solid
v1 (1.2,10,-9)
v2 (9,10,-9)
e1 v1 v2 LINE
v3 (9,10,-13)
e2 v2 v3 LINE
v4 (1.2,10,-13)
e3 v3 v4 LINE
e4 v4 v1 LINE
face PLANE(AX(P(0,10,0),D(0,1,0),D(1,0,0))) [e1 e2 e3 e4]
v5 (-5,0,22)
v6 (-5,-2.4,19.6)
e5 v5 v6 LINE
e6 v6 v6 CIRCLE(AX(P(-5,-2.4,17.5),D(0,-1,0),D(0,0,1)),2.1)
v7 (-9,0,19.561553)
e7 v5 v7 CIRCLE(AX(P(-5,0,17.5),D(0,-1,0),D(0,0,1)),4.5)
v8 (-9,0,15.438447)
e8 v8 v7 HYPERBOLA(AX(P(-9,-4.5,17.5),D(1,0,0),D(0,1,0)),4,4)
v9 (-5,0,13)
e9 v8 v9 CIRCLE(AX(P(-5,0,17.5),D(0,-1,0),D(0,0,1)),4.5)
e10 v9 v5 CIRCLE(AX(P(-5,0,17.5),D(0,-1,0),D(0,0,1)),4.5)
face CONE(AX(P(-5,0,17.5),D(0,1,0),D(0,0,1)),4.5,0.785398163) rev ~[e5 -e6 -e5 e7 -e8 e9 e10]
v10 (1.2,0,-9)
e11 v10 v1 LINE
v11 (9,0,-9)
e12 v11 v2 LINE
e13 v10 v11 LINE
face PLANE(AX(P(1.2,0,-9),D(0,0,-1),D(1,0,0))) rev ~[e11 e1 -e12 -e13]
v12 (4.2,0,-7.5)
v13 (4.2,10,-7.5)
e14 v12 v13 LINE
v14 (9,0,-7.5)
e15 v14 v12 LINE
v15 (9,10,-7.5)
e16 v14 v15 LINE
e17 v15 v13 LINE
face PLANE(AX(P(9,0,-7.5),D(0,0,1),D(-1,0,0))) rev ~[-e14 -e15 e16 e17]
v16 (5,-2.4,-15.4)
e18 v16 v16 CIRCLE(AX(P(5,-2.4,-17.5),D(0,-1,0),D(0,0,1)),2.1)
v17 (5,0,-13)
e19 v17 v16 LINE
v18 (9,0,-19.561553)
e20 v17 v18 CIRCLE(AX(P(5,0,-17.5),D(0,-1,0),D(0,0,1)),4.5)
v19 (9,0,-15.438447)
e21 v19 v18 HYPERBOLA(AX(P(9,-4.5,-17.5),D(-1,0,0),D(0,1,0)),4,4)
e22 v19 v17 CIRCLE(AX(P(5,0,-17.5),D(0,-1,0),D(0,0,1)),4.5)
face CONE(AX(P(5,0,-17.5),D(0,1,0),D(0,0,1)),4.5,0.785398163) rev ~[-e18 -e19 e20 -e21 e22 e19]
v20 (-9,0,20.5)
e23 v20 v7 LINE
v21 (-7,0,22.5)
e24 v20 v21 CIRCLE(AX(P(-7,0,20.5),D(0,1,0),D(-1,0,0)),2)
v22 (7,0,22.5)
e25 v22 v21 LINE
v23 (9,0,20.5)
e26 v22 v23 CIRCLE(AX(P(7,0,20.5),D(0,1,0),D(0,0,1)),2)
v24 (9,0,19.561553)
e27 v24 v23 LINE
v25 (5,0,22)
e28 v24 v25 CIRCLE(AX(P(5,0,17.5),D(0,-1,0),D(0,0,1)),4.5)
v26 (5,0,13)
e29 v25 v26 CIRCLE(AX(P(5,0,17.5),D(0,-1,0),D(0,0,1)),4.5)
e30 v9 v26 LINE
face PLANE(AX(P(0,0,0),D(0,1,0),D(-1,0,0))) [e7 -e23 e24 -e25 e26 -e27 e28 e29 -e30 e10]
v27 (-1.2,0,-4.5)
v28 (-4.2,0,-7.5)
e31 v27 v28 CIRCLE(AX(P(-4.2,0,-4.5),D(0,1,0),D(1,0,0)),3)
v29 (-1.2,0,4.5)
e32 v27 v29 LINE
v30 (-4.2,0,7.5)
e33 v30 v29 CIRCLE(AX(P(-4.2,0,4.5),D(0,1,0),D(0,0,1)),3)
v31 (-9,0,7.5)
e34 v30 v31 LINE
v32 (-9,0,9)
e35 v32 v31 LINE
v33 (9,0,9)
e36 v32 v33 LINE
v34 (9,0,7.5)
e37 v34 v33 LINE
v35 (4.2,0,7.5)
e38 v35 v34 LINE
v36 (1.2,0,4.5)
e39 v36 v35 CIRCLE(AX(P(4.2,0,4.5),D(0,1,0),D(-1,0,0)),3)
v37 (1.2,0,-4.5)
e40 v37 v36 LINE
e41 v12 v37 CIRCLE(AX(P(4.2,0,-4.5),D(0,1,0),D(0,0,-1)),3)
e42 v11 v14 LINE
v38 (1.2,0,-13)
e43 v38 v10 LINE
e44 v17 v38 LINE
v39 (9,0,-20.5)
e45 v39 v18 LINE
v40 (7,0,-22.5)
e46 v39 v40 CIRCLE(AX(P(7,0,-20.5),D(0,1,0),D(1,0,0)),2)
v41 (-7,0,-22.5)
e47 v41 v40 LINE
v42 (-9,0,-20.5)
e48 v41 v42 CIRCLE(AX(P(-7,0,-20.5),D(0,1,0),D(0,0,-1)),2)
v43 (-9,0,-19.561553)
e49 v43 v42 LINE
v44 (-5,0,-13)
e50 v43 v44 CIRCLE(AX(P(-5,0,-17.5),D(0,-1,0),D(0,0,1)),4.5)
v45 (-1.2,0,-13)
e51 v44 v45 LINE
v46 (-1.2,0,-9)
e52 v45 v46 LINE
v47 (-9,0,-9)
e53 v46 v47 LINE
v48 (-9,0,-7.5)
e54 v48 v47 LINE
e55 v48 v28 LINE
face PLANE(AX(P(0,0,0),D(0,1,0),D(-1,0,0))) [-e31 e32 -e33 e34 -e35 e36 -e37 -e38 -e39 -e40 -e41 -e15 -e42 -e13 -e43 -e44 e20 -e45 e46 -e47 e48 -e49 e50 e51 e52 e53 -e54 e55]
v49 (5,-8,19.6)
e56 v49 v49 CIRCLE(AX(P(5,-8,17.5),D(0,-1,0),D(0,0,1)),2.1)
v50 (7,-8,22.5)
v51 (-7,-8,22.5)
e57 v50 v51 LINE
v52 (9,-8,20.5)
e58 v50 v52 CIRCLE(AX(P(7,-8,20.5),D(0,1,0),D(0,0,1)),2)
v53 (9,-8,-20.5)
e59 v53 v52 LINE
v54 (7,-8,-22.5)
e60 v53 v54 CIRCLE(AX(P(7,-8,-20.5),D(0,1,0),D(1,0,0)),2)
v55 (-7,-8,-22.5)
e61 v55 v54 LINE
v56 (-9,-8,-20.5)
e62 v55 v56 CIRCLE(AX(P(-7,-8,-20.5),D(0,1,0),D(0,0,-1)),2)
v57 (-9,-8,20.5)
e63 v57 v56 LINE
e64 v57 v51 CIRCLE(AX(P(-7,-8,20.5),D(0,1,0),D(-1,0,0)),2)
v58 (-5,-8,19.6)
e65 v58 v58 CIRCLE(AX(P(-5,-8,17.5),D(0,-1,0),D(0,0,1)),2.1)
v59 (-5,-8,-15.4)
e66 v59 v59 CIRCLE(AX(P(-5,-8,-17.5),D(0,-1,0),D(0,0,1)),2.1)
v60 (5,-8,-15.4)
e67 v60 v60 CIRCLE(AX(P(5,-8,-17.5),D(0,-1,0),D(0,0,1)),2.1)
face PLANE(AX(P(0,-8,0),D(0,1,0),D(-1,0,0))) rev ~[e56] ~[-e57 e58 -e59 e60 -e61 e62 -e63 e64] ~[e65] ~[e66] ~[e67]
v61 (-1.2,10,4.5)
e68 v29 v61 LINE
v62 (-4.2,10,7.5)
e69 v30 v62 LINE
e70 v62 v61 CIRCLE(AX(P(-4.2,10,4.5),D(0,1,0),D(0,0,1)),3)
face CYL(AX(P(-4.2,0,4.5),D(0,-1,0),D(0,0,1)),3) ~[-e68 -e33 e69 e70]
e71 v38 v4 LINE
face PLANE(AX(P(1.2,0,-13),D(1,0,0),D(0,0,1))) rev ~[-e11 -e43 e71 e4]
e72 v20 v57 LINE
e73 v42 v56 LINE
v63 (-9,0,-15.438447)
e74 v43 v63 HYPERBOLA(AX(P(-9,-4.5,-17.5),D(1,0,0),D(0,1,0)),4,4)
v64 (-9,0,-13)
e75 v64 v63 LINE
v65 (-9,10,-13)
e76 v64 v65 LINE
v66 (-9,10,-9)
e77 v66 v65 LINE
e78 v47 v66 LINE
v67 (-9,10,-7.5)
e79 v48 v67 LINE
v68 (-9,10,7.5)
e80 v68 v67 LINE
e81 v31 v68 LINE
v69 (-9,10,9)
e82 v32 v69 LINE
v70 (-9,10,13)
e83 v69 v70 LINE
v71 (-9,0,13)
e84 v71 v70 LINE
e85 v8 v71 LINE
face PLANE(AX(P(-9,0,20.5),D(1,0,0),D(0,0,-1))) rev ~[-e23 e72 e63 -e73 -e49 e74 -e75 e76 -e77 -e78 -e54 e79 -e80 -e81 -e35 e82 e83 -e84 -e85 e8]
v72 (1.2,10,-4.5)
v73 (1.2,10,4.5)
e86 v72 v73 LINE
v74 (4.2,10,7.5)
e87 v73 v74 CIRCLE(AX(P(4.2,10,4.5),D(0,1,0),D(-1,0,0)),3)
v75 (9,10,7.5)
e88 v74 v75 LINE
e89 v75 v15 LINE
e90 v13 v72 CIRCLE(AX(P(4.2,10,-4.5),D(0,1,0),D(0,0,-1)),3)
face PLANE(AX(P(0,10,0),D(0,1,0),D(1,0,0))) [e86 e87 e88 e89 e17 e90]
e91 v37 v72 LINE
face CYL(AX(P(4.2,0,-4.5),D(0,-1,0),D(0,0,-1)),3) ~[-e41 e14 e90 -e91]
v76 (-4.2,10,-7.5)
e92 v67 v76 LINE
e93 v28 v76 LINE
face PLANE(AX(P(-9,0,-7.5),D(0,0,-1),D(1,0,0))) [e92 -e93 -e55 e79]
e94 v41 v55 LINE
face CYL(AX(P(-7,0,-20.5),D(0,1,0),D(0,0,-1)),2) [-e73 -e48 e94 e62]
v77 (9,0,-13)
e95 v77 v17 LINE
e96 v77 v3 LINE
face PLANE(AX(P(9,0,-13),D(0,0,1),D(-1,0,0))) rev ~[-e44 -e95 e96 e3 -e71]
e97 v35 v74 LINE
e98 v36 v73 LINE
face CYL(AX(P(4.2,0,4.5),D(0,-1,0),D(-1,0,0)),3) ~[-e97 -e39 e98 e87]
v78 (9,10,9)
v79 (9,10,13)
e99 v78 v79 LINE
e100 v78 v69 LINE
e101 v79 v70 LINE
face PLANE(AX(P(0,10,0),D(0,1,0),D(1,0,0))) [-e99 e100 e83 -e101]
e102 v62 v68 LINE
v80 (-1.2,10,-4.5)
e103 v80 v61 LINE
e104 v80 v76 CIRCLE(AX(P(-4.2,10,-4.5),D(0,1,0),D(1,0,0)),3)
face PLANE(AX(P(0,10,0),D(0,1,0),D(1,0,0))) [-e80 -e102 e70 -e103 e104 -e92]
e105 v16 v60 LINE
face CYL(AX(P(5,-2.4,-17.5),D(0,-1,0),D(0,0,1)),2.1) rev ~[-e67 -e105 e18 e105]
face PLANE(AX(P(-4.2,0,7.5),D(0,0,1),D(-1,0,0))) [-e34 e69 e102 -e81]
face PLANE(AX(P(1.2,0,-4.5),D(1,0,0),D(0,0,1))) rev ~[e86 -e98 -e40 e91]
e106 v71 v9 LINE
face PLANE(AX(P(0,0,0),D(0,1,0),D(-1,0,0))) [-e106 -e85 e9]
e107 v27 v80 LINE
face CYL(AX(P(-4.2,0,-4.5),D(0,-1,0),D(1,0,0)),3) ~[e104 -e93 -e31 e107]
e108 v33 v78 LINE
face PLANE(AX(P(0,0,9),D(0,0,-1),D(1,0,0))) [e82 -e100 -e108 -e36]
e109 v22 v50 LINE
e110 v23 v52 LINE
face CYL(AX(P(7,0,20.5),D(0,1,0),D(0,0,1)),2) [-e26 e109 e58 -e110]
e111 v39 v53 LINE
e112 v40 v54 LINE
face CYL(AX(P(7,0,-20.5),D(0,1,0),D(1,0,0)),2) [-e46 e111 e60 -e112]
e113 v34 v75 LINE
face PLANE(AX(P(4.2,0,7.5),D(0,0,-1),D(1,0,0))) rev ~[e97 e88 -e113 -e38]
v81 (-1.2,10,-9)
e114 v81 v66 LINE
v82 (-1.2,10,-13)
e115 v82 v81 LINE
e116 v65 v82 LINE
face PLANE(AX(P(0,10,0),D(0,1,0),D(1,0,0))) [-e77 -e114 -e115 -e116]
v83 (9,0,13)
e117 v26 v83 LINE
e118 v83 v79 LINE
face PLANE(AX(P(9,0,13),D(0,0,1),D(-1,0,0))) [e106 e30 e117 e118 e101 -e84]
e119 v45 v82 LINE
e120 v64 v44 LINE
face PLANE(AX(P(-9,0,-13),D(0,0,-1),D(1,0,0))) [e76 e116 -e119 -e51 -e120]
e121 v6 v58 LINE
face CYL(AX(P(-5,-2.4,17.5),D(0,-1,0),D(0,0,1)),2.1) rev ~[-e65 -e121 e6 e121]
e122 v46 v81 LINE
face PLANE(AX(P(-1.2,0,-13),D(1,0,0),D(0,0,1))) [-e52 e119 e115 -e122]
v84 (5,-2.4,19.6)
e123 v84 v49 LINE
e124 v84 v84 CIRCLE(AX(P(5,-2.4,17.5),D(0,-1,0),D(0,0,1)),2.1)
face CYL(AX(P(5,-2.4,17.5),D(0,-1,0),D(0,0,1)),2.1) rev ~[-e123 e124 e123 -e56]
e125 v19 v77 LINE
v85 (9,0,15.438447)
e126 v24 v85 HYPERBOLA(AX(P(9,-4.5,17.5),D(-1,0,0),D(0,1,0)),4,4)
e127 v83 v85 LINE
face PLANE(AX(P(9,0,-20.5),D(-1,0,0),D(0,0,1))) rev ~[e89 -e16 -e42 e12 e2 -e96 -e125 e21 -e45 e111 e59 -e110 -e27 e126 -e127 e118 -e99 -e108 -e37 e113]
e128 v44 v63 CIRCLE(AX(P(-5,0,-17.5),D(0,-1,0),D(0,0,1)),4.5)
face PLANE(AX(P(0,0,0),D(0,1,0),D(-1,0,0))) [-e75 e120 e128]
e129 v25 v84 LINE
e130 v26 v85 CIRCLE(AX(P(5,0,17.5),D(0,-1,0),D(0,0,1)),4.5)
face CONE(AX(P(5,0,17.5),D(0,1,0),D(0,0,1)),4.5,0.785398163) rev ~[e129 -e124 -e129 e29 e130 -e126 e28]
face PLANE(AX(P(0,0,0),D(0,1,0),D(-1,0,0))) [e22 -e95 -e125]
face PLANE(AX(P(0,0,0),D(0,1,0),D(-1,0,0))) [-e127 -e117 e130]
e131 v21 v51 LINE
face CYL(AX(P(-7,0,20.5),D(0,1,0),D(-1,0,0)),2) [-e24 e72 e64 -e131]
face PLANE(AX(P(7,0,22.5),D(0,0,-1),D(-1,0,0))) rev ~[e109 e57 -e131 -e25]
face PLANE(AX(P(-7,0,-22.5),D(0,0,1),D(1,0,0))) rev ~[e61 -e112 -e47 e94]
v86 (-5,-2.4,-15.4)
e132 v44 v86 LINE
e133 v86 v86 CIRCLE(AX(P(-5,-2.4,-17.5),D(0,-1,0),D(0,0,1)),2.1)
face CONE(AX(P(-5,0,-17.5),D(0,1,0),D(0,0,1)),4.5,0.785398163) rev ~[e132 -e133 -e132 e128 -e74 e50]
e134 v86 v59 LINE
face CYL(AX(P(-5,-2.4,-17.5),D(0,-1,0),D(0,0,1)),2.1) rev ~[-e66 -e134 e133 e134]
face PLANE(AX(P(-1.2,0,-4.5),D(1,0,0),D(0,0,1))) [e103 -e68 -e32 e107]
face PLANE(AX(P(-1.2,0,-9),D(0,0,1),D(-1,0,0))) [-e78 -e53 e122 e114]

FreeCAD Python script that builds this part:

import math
import FreeCAD as App
import Part
import Sketcher
from FreeCAD import Vector
Q = App.Units.Quantity


def add_polygon(sketch, points):
    """Adds a closed chain of lines whose ends are joined by coincident constraints."""
    first, n = sketch.GeometryCount, len(points)
    for a, b in zip(points, points[1:] + points[:1]):
        sketch.addGeometry(Part.LineSegment(App.Vector(*a, 0), App.Vector(*b, 0)), False)
    for i in range(n):
        sketch.addConstraint(Sketcher.Constraint("Coincident", first + i, 2, first + (i + 1) % n, 1))

doc = App.newDocument("Part")
body = doc.addObject("PartDesign::Body", "Body")

sketch1 = body.newObject("Sketcher::SketchObject", "Sketch")
sketch1.AttachmentSupport = (doc.getObject("XZ_Plane"), [""])
sketch1.MapMode = "FlatFace"
sketch1.addGeometry(Part.LineSegment(Vector(-7, 22.5, 0), Vector(7, 22.5, 0)), False)
sketch1.addGeometry(Part.ArcOfCircle(Part.Circle(Vector(7, 20.5, 0), Vector(0, 0, 1), 2), math.radians(0), math.radians(90)), False)
sketch1.addGeometry(Part.LineSegment(Vector(9, 20.5, 0), Vector(9, -20.5, 0)), False)
sketch1.addGeometry(Part.ArcOfCircle(Part.Circle(Vector(7, -20.5, 0), Vector(0, 0, 1), 2), math.radians(-90), math.radians(0)), False)
sketch1.addGeometry(Part.LineSegment(Vector(7, -22.5, 0), Vector(-7, -22.5, 0)), False)
sketch1.addGeometry(Part.ArcOfCircle(Part.Circle(Vector(-7, -20.5, 0), Vector(0, 0, 1), 2), math.radians(180), math.radians(270)), False)
sketch1.addGeometry(Part.LineSegment(Vector(-9, -20.5, 0), Vector(-9, 20.5, 0)), False)
sketch1.addGeometry(Part.ArcOfCircle(Part.Circle(Vector(-7, 20.5, 0), Vector(0, 0, 1), 2), math.radians(90), math.radians(180)), False)
sketch1.addConstraint(Sketcher.Constraint("Tangent", 0, 2, 1, 2))
sketch1.addConstraint(Sketcher.Constraint("Tangent", 1, 1, 2, 1))
sketch1.addConstraint(Sketcher.Constraint("Tangent", 2, 2, 3, 2))
sketch1.addConstraint(Sketcher.Constraint("Tangent", 3, 1, 4, 1))
sketch1.addConstraint(Sketcher.Constraint("Tangent", 4, 2, 5, 2))
sketch1.addConstraint(Sketcher.Constraint("Tangent", 5, 1, 6, 1))
sketch1.addConstraint(Sketcher.Constraint("Tangent", 6, 2, 7, 2))
sketch1.addConstraint(Sketcher.Constraint("Tangent", 7, 1, 0, 1))
sketch1.addConstraint(Sketcher.Constraint("Horizontal", 0))
sketch1.addConstraint(Sketcher.Constraint("Vertical", 2))
sketch1.addConstraint(Sketcher.Constraint("Horizontal", 4))
sketch1.addConstraint(Sketcher.Constraint("Vertical", 6))
sketch1.addConstraint(Sketcher.Constraint("Equal", 1, 3))
sketch1.addConstraint(Sketcher.Constraint("Equal", 3, 5))
sketch1.addConstraint(Sketcher.Constraint("Equal", 5, 7))
sketch1.addConstraint(Sketcher.Constraint("Symmetric", 1, 3, 5, 3, -1, 1))
sketch1.addConstraint(Sketcher.Constraint("Radius", 1, Q("2 mm")))
sketch1.addConstraint(Sketcher.Constraint("DistanceX", 5, 1, 2, 2, Q("18 mm")))
sketch1.addConstraint(Sketcher.Constraint("DistanceY", 2, 2, 2, 1, Q("41 mm")))
pad1 = body.newObject("PartDesign::Pad", "Pad")
pad1.Profile = sketch1
pad1.Length = 8

sketch2 = body.newObject("Sketcher::SketchObject", "Sketch001")
sketch2.AttachmentSupport = (doc.getObject("XZ_Plane"), [""])
sketch2.MapMode = "FlatFace"
sketch2.addGeometry(Part.Circle(Vector(-5, 17.5, 0), Vector(0, 0, 1), 2.1), False)
sketch2.addGeometry(Part.Circle(Vector(5, 17.5, 0), Vector(0, 0, 1), 2.1), False)
sketch2.addGeometry(Part.Circle(Vector(5, -17.5, 0), Vector(0, 0, 1), 2.1), False)
sketch2.addGeometry(Part.Circle(Vector(-5, -17.5, 0), Vector(0, 0, 1), 2.1), False)
sketch2.addConstraint(Sketcher.Constraint("Equal", 0, 1))
sketch2.addConstraint(Sketcher.Constraint("Equal", 1, 2))
sketch2.addConstraint(Sketcher.Constraint("Equal", 2, 3))
sketch2.addConstraint(Sketcher.Constraint("Symmetric", 0, 3, 2, 3, -1, 1))
sketch2.addConstraint(Sketcher.Constraint("Symmetric", 1, 3, 3, 3, -1, 1))
sketch2.addConstraint(Sketcher.Constraint("Symmetric", 0, 3, 1, 3, -2))
sketch2.addConstraint(Sketcher.Constraint("Diameter", 0, Q("4.2 mm")))
sketch2.addConstraint(Sketcher.Constraint("DistanceX", 0, 3, -1, 1, Q("5 mm")))
sketch2.addConstraint(Sketcher.Constraint("DistanceY", 2, 3, 1, 3, Q("35 mm")))
doc.recompute()
hole = body.newObject("PartDesign::Hole", "Hole")
hole.Profile = sketch2
hole.ThreadType = "None"
hole.Diameter = 4.2
hole.DepthType = "ThroughAll"
hole.HoleCutType = "Countersink"
hole.HoleCutDiameter = 9
hole.HoleCutCountersinkAngle = 90
hole.Reversed = True

sketch3 = body.newObject("Sketcher::SketchObject", "Sketch002")
sketch3.AttachmentSupport = (doc.getObject("XZ_Plane"), [""])
sketch3.MapMode = "FlatFace"
sketch3.addGeometry(Part.LineSegment(Vector(9, 7.5, 0), Vector(9, -7.5, 0)), False)
sketch3.addGeometry(Part.LineSegment(Vector(9, -7.5, 0), Vector(4.2, -7.5, 0)), False)
sketch3.addGeometry(Part.ArcOfCircle(Part.Circle(Vector(4.2, -4.5, 0), Vector(0, 0, 1), 3), math.radians(180), math.radians(270)), False)
sketch3.addGeometry(Part.LineSegment(Vector(1.2, -4.5, 0), Vector(1.2, 4.5, 0)), False)
sketch3.addGeometry(Part.ArcOfCircle(Part.Circle(Vector(4.2, 4.5, 0), Vector(0, 0, 1), 3), math.radians(90), math.radians(180)), False)
sketch3.addGeometry(Part.LineSegment(Vector(4.2, 7.5, 0), Vector(9, 7.5, 0)), False)
add_polygon(sketch3, [(9, 13), (9, 9), (-9, 9), (-9, 13)])
add_polygon(sketch3, [(9, -9), (9, -13), (1.2, -13), (1.2, -9)])
sketch3.addGeometry(Part.LineSegment(Vector(-4.2, -7.5, 0), Vector(-9, -7.5, 0)), False)
sketch3.addGeometry(Part.LineSegment(Vector(-9, -7.5, 0), Vector(-9, 7.5, 0)), False)
sketch3.addGeometry(Part.LineSegment(Vector(-9, 7.5, 0), Vector(-4.2, 7.5, 0)), False)
sketch3.addGeometry(Part.ArcOfCircle(Part.Circle(Vector(-4.2, 4.5, 0), Vector(0, 0, 1), 3), math.radians(0), math.radians(90)), False)
sketch3.addGeometry(Part.LineSegment(Vector(-1.2, 4.5, 0), Vector(-1.2, -4.5, 0)), False)
sketch3.addGeometry(Part.ArcOfCircle(Part.Circle(Vector(-4.2, -4.5, 0), Vector(0, 0, 1), 3), math.radians(-90), math.radians(0)), False)
add_polygon(sketch3, [(-1.2, -13), (-9, -13), (-9, -9), (-1.2, -9)])
sketch3.addConstraint(Sketcher.Constraint("Coincident", 0, 2, 1, 1))
sketch3.addConstraint(Sketcher.Constraint("Tangent", 1, 2, 2, 2))
sketch3.addConstraint(Sketcher.Constraint("Tangent", 2, 1, 3, 1))
sketch3.addConstraint(Sketcher.Constraint("Tangent", 3, 2, 4, 2))
sketch3.addConstraint(Sketcher.Constraint("Tangent", 4, 1, 5, 1))
sketch3.addConstraint(Sketcher.Constraint("Coincident", 5, 2, 0, 1))
sketch3.addConstraint(Sketcher.Constraint("Coincident", 14, 2, 15, 1))
sketch3.addConstraint(Sketcher.Constraint("Coincident", 15, 2, 16, 1))
sketch3.addConstraint(Sketcher.Constraint("Tangent", 16, 2, 17, 2))
sketch3.addConstraint(Sketcher.Constraint("Tangent", 17, 1, 18, 1))
sketch3.addConstraint(Sketcher.Constraint("Tangent", 18, 2, 19, 2))
sketch3.addConstraint(Sketcher.Constraint("Tangent", 19, 1, 14, 1))
sketch3.addConstraint(Sketcher.Constraint("Vertical", 0))
sketch3.addConstraint(Sketcher.Constraint("Horizontal", 1))
sketch3.addConstraint(Sketcher.Constraint("Vertical", 3))
sketch3.addConstraint(Sketcher.Constraint("Horizontal", 5))
sketch3.addConstraint(Sketcher.Constraint("Vertical", 6))
sketch3.addConstraint(Sketcher.Constraint("Horizontal", 7))
sketch3.addConstraint(Sketcher.Constraint("Vertical", 8))
sketch3.addConstraint(Sketcher.Constraint("Horizontal", 9))
sketch3.addConstraint(Sketcher.Constraint("Vertical", 10))
sketch3.addConstraint(Sketcher.Constraint("Horizontal", 11))
sketch3.addConstraint(Sketcher.Constraint("Vertical", 12))
sketch3.addConstraint(Sketcher.Constraint("Horizontal", 13))
sketch3.addConstraint(Sketcher.Constraint("Horizontal", 14))
sketch3.addConstraint(Sketcher.Constraint("Vertical", 15))
sketch3.addConstraint(Sketcher.Constraint("Horizontal", 16))
sketch3.addConstraint(Sketcher.Constraint("Vertical", 18))
sketch3.addConstraint(Sketcher.Constraint("Horizontal", 20))
sketch3.addConstraint(Sketcher.Constraint("Vertical", 21))
sketch3.addConstraint(Sketcher.Constraint("Horizontal", 22))
sketch3.addConstraint(Sketcher.Constraint("Vertical", 23))
sketch3.addConstraint(Sketcher.Constraint("Equal", 2, 4))
sketch3.addConstraint(Sketcher.Constraint("Equal", 4, 17))
sketch3.addConstraint(Sketcher.Constraint("Equal", 17, 19))
sketch3.addConstraint(Sketcher.Constraint("Symmetric", 2, 3, 17, 3, -1, 1))
sketch3.addConstraint(Sketcher.Constraint("Symmetric", 8, 2, 10, 2, -1, 1))
sketch3.addConstraint(Sketcher.Constraint("Symmetric", 5, 2, 14, 2, -1, 1))
sketch3.addConstraint(Sketcher.Constraint("Symmetric", 9, 2, 20, 2, -1, 1))
sketch3.addConstraint(Sketcher.Constraint("Symmetric", 13, 2, 21, 2, -2))
sketch3.addConstraint(Sketcher.Constraint("Horizontal", 4, 3, 17, 3))
sketch3.addConstraint(Sketcher.Constraint("Vertical", 5, 2, 6, 2))
sketch3.addConstraint(Sketcher.Constraint("Vertical", 3, 2, 11, 2))
sketch3.addConstraint(Sketcher.Constraint("Vertical", 18, 2, 22, 2))
sketch3.addConstraint(Sketcher.Constraint("Equal", 8, 10))
sketch3.addConstraint(Sketcher.Constraint("Radius", 2, Q("3 mm")))
sketch3.addConstraint(Sketcher.Constraint("DistanceY", 0, 2, 0, 1, Q("15 mm")))
sketch3.addConstraint(Sketcher.Constraint("DistanceY", 6, 2, 6, 1, Q("4 mm")))
sketch3.addConstraint(Sketcher.Constraint("DistanceX", -1, 1, 2, 1, Q("1.2 mm")))
sketch3.addConstraint(Sketcher.Constraint("DistanceY", 5, 2, 6, 2, Q("1.5 mm")))
sketch3.addConstraint(Sketcher.Constraint("DistanceX", 7, 2, 7, 1, Q("18 mm")))
pad2 = body.newObject("PartDesign::Pad", "Pad001")
pad2.Profile = sketch3
pad2.Length = 10
pad2.Reversed = True

doc.recompute()
